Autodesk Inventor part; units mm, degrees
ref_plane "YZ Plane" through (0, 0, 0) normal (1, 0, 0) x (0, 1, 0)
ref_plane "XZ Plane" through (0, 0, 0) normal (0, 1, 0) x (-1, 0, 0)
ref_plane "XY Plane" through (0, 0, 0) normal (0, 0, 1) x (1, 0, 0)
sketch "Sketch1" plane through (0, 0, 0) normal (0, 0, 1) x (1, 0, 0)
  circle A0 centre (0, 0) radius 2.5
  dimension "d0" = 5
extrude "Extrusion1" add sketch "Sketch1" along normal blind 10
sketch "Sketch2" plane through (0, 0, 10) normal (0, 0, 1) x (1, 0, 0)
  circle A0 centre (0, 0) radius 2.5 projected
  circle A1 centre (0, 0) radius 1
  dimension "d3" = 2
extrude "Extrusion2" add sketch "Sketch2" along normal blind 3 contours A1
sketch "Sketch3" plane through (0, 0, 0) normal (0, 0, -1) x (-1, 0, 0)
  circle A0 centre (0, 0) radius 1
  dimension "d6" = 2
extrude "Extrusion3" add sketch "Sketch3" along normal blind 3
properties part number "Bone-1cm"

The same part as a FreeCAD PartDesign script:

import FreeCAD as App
import Part
import Sketcher

doc = App.newDocument("Part")
body = doc.addObject("PartDesign::Body", "Body")

sketch1 = body.newObject("Sketcher::SketchObject", "Sketch")
sketch1.AttachmentSupport = (doc.getObject("XY_Plane"), [""])
sketch1.MapMode = "FlatFace"
sketch1.addGeometry(Part.Circle(App.Vector(0, 0, 0), App.Vector(0, 0, 1), 2.5), False)
sketch1.addConstraint(Sketcher.Constraint("Coincident", 0, 3, -1, 1))
sketch1.addConstraint(Sketcher.Constraint("Diameter", 0, 5.0))
pad1 = body.newObject("PartDesign::Pad", "Pad")
pad1.Profile = sketch1
pad1.Length = 10

sketch2 = body.newObject("Sketcher::SketchObject", "Sketch001")
sketch2.AttachmentSupport = (doc.getObject("XY_Plane"), [""])
sketch2.MapMode = "FlatFace"
sketch2.AttachmentOffset = App.Placement(App.Vector(0, 0, 10), App.Rotation())
sketch2.addGeometry(Part.Circle(App.Vector(0, 0, 0), App.Vector(0, 0, 1), 1), False)
sketch2.addConstraint(Sketcher.Constraint("Coincident", 0, 3, -1, 1))
sketch2.addConstraint(Sketcher.Constraint("Diameter", 0, 2.0))
pad2 = body.newObject("PartDesign::Pad", "Pad001")
pad2.Profile = sketch2
pad2.Length = 3

sketch3 = body.newObject("Sketcher::SketchObject", "Sketch002")
sketch3.AttachmentSupport = (doc.getObject("XY_Plane"), [""])
sketch3.MapMode = "FlatFace"
sketch3.addGeometry(Part.Circle(App.Vector(0, 0, 0), App.Vector(0, 0, 1), 1), False)
sketch3.addConstraint(Sketcher.Constraint("Coincident", 0, 3, -1, 1))
sketch3.addConstraint(Sketcher.Constraint("Diameter", 0, 2.0))
pad3 = body.newObject("PartDesign::Pad", "Pad002")
pad3.Profile = sketch3
pad3.Length = 3
pad3.Reversed = True

doc.recompute()
